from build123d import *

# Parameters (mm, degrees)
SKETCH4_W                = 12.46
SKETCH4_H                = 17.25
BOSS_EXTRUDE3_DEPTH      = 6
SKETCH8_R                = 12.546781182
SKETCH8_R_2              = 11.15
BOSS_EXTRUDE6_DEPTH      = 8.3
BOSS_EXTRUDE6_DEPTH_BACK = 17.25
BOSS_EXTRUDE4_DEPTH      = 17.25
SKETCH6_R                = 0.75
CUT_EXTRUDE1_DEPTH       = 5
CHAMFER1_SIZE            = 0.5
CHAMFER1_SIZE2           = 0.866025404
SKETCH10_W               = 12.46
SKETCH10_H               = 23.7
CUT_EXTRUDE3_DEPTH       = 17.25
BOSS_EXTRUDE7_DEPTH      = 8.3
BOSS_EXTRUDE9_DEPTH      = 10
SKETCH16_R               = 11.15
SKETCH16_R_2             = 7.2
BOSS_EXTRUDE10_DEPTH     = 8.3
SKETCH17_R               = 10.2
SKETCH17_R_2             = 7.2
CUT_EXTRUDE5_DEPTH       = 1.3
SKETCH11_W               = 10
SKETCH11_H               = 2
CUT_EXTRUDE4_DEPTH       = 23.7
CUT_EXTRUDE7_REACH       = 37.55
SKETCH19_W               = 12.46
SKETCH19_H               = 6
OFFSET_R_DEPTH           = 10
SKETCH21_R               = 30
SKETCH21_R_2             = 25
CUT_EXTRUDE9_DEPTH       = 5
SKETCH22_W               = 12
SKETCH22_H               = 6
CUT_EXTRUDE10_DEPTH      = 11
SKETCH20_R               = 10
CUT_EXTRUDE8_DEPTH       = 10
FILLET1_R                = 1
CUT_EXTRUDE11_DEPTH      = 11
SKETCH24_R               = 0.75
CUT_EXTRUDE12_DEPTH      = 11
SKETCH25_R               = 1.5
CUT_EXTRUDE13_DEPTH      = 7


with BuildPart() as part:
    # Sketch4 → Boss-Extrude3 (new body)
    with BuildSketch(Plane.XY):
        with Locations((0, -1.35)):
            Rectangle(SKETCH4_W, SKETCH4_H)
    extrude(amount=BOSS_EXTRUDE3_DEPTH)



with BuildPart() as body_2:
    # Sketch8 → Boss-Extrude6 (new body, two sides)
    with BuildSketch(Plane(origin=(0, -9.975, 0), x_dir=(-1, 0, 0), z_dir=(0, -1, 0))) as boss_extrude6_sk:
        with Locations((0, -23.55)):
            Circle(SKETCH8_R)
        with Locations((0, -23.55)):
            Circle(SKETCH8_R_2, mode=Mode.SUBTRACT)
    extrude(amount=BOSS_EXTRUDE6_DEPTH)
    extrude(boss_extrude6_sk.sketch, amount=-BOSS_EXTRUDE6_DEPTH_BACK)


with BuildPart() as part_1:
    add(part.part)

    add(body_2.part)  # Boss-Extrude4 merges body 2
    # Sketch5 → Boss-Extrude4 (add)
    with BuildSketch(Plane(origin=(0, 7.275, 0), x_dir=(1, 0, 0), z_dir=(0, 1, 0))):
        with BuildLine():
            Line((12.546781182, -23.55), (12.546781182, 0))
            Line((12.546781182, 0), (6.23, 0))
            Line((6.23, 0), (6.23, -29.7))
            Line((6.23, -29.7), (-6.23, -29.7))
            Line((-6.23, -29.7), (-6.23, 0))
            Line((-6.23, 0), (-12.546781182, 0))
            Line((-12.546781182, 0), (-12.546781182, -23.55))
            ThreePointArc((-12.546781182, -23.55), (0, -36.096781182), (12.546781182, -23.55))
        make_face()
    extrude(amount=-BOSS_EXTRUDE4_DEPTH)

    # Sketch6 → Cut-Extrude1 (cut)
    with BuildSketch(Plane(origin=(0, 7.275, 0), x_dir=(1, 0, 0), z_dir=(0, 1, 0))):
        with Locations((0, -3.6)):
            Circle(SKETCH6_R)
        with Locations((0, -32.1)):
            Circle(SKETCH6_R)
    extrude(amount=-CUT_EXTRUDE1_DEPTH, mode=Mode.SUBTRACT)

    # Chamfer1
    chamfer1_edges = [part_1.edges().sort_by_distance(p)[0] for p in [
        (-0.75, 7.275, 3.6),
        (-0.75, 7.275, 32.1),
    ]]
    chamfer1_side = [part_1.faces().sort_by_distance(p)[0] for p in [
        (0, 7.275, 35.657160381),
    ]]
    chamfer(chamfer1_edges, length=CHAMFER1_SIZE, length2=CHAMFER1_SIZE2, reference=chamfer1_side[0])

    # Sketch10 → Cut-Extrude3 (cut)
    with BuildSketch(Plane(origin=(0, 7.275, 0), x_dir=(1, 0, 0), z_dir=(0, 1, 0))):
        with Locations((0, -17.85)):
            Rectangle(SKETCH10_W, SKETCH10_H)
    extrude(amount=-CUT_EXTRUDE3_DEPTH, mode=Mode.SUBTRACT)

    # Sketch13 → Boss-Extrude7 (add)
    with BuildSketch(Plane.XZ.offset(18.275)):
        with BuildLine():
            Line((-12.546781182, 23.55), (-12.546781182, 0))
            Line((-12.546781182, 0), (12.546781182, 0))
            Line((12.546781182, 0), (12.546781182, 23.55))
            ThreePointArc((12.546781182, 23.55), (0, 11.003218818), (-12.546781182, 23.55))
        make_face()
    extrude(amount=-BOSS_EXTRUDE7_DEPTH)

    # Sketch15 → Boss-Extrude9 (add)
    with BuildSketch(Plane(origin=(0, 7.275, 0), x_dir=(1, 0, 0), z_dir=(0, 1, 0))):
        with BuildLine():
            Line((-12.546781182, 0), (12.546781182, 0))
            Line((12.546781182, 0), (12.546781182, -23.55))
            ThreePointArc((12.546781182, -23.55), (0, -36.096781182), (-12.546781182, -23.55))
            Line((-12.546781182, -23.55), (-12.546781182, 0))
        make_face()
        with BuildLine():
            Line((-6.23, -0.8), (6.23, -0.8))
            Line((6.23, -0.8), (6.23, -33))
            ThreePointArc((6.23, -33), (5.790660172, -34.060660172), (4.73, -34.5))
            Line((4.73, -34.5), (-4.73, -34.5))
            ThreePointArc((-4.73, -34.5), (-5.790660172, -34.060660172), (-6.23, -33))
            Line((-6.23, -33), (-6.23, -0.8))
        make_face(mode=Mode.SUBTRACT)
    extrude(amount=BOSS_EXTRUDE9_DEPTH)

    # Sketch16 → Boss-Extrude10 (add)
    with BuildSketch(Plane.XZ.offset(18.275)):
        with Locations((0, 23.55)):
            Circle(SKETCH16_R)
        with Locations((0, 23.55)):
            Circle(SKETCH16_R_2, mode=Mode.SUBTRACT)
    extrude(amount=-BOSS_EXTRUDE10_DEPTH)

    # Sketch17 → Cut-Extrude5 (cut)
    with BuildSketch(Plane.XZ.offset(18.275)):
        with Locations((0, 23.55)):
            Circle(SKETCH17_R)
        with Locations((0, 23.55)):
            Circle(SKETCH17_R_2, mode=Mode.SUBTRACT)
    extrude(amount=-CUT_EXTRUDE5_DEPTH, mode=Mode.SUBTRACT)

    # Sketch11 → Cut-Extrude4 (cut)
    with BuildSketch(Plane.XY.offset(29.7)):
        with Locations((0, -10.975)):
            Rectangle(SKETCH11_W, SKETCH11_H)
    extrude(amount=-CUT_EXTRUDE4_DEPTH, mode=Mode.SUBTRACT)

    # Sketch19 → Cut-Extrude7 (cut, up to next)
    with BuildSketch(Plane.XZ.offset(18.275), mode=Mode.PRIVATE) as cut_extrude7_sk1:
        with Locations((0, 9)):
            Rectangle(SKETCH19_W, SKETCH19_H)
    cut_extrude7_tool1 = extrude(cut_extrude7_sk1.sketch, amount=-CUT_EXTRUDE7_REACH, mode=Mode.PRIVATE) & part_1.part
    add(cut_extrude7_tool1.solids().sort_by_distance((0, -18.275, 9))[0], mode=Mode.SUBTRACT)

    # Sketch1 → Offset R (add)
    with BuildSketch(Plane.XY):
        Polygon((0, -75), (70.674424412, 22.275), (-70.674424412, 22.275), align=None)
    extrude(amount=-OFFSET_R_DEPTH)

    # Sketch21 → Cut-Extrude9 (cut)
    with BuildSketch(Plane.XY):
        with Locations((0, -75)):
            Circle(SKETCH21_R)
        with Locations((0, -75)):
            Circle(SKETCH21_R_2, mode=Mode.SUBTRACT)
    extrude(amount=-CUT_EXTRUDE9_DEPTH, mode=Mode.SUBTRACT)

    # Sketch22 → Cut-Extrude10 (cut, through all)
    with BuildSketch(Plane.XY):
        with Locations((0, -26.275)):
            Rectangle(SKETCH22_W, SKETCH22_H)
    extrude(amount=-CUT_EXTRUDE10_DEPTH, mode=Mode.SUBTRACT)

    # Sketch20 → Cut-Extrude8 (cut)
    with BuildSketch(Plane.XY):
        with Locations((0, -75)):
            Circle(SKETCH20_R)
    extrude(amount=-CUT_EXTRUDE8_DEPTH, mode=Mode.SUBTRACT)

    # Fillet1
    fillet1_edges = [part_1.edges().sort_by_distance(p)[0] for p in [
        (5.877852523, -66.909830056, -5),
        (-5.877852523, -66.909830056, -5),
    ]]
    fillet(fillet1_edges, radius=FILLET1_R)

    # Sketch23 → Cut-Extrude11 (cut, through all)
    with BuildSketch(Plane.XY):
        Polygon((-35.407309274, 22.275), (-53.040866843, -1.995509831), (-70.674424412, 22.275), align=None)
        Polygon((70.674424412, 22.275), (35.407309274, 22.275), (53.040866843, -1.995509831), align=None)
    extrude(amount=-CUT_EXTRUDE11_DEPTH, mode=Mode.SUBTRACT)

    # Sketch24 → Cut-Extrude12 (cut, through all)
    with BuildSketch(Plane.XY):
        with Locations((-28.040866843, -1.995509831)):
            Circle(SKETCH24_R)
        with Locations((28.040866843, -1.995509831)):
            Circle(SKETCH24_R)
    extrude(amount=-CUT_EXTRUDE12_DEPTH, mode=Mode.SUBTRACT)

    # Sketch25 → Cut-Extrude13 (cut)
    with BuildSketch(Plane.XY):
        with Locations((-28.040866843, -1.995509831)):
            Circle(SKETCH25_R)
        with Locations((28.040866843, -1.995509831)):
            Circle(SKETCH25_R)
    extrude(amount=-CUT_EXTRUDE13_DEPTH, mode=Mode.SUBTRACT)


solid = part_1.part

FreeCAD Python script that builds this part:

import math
import FreeCAD as App
import Part
import Sketcher

V = App.Vector
Q = App.Units.Quantity


def edges_at(feature, points):
    """Names of the edges that pass closest to the given points."""
    edges = feature.Shape.Edges
    near = lambda p: min(range(len(edges)), key=lambda i: edges[i].distToShape(Part.Vertex(*p))[0])
    return sorted({f"Edge{near(p) + 1}" for p in points})


def add_polygon(sketch, points):
    """Adds a closed chain of lines whose ends are joined by coincident constraints."""
    first, n = sketch.GeometryCount, len(points)
    for a, b in zip(points, points[1:] + points[:1]):
        sketch.addGeometry(Part.LineSegment(App.Vector(*a, 0), App.Vector(*b, 0)), False)
    for i in range(n):
        sketch.addConstraint(Sketcher.Constraint("Coincident", first + i, 2, first + (i + 1) % n, 1))

doc = App.newDocument("Part")
body = doc.addObject("PartDesign::Body", "Body")

sketch1 = body.newObject("Sketcher::SketchObject", "Sketch")
sketch1.AttachmentSupport = (doc.getObject("XY_Plane"), [""])
sketch1.MapMode = "FlatFace"
add_polygon(sketch1, [(-6.23, 7.275), (-6.23, -9.975), (6.23, -9.975), (6.23, 7.275)])
sketch1.addConstraint([
    Sketcher.Constraint("Vertical", 0),
    Sketcher.Constraint("Horizontal", 1),
    Sketcher.Constraint("Vertical", 2),
    Sketcher.Constraint("Horizontal", 3),
    Sketcher.Constraint("DistanceX", 1, 1, 1, 2, Q("12.46 mm")),
    Sketcher.Constraint("DistanceY", 0, 2, 0, 1, Q("17.25 mm")),
    Sketcher.Constraint("DistanceX", 0, 2, -1, 1, Q("6.23 mm")),
    Sketcher.Constraint("DistanceY", 0, 2, -1, 1, Q("9.975 mm")),
])
pad1 = body.newObject("PartDesign::Pad", "Pad")
pad1.Profile = sketch1
pad1.Length = 6
body2 = doc.addObject("PartDesign::Body", "Body001")

sketch2 = body2.newObject("Sketcher::SketchObject", "Sketch001")
sketch2.AttachmentSupport = (doc.getObject("XZ_Plane001"), [""])
sketch2.MapMode = "FlatFace"
sketch2.AttachmentOffset = App.Placement(V(0, 0, 9.975), App.Rotation())
sketch2.addGeometry([
    Part.Circle(V(0, 23.55, 0), V(0, 0, 1), 12.546781),
    Part.Circle(V(0, 23.55, 0), V(0, 0, 1), 11.15),
], False)
sketch2.addConstraint([
    Sketcher.Constraint("Coincident", 1, 3, 0, 3),
    Sketcher.Constraint("PointOnObject", 0, 3, -2),
    Sketcher.Constraint("Diameter", 1, Q("22.3 mm")),
    Sketcher.Constraint("DistanceY", -1, 1, 0, 3, Q("23.55 mm")),
    Sketcher.Constraint("Diameter", 0, Q("25.093562 mm")),
])
pad2 = body2.newObject("PartDesign::Pad", "Pad001")
pad2.Profile = sketch2
pad2.Type = "TwoLengths"
pad2.Length = 8.3
pad2.Length2 = 17.25
body.AllowCompound = True
doc.recompute()

boolean = body.newObject("PartDesign::Boolean", "Boolean")
boolean.Type = "Fuse"
boolean.addObjects([body2])

sketch3 = body.newObject("Sketcher::SketchObject", "Sketch002")
sketch3.AttachmentSupport = (doc.getObject("XZ_Plane"), [""])
sketch3.MapMode = "FlatFace"
sketch3.AttachmentOffset = App.Placement(V(0, 0, -7.275), App.Rotation())
sketch3.addGeometry([
    Part.LineSegment(V(12.546781, 23.55, 0), V(12.546781, 0, 0)),
    Part.LineSegment(V(12.546781, 0, 0), V(6.23, 0, 0)),
    Part.LineSegment(V(6.23, 0, 0), V(6.23, 29.7, 0)),
    Part.LineSegment(V(6.23, 29.7, 0), V(-6.23, 29.7, 0)),
    Part.LineSegment(V(-6.23, 29.7, 0), V(-6.23, 0, 0)),
    Part.LineSegment(V(-6.23, 0, 0), V(-12.546781, 0, 0)),
    Part.LineSegment(V(-12.546781, 0, 0), V(-12.546781, 23.55, 0)),
    Part.ArcOfCircle(Part.Circle(V(0, 23.55, 0), V(0, 0, 1), 12.546781), math.radians(0), math.radians(180)),
], False)
sketch3.addConstraint([
    Sketcher.Constraint("Coincident", 0, 2, 1, 1),
    Sketcher.Constraint("Coincident", 1, 2, 2, 1),
    Sketcher.Constraint("Coincident", 2, 2, 3, 1),
    Sketcher.Constraint("Coincident", 3, 2, 4, 1),
    Sketcher.Constraint("Coincident", 4, 2, 5, 1),
    Sketcher.Constraint("Coincident", 5, 2, 6, 1),
    Sketcher.Constraint("Tangent", 6, 2, 7, 2),
    Sketcher.Constraint("Tangent", 7, 1, 0, 1),
    Sketcher.Constraint("Vertical", 0),
    Sketcher.Constraint("Horizontal", 1),
    Sketcher.Constraint("Vertical", 2),
    Sketcher.Constraint("Horizontal", 3),
    Sketcher.Constraint("Vertical", 4),
    Sketcher.Constraint("Horizontal", 5),
    Sketcher.Constraint("Vertical", 6),
    Sketcher.Constraint("Symmetric", 1, 2, 4, 2, -1, 1),
    Sketcher.Constraint("Symmetric", 0, 2, 5, 2, -2),
    Sketcher.Constraint("DistanceY", 2, 1, 2, 2, Q("29.7 mm")),
    Sketcher.Constraint("DistanceX", 3, 2, 3, 1, Q("12.46 mm")),
    Sketcher.Constraint("DistanceY", 0, 2, 0, 1, Q("23.55 mm")),
    Sketcher.Constraint("Radius", 7, Q("12.546781 mm")),
])
pad3 = body.newObject("PartDesign::Pad", "Pad002")
pad3.Profile = sketch3
pad3.Length = 17.25

sketch4 = body.newObject("Sketcher::SketchObject", "Sketch003")
sketch4.AttachmentSupport = (doc.getObject("XZ_Plane"), [""])
sketch4.MapMode = "FlatFace"
sketch4.AttachmentOffset = App.Placement(V(0, 0, -7.275), App.Rotation())
sketch4.addGeometry([
    Part.Circle(V(0, 3.6, 0), V(0, 0, 1), 0.75),
    Part.Circle(V(0, 32.1, 0), V(0, 0, 1), 0.75),
], False)
sketch4.addConstraint([
    Sketcher.Constraint("Equal", 0, 1),
    Sketcher.Constraint("PointOnObject", 0, 3, -2),
    Sketcher.Constraint("PointOnObject", 1, 3, -2),
    Sketcher.Constraint("Diameter", 0, Q("1.5 mm")),
    Sketcher.Constraint("DistanceY", -1, 1, 0, 3, Q("3.6 mm")),
    Sketcher.Constraint("DistanceY", -1, 1, 1, 3, Q("32.1 mm")),
])
pocket1 = body.newObject("PartDesign::Pocket", "Pocket")
pocket1.Profile = sketch4
pocket1.Length = 5
pocket1.Reversed = True
doc.recompute()

chamfer = body.newObject("PartDesign::Chamfer", "Chamfer")
chamfer.Base = (pocket1, edges_at(pocket1, [(-0.75, 7.275, 3.6), (-0.75, 7.275, 32.1)]))
chamfer.ChamferType = "Two distances"
chamfer.Size = 0.5
chamfer.Size2 = 0.866025

sketch5 = body.newObject("Sketcher::SketchObject", "Sketch004")
sketch5.AttachmentSupport = (doc.getObject("XZ_Plane"), [""])
sketch5.MapMode = "FlatFace"
sketch5.AttachmentOffset = App.Placement(V(0, 0, -7.275), App.Rotation())
add_polygon(sketch5, [(-6.23, 6), (-6.23, 29.7), (6.23, 29.7), (6.23, 6)])
sketch5.addConstraint([
    Sketcher.Constraint("Vertical", 0),
    Sketcher.Constraint("Horizontal", 1),
    Sketcher.Constraint("Vertical", 2),
    Sketcher.Constraint("Horizontal", 3),
    Sketcher.Constraint("DistanceY", 0, 1, 0, 2, Q("23.7 mm")),
    Sketcher.Constraint("DistanceY", -1, 1, 2, 2, Q("6 mm")),
    Sketcher.Constraint("DistanceX", 1, 1, 1, 2, Q("12.46 mm")),
    Sketcher.Constraint("DistanceX", 0, 2, -1, 1, Q("6.23 mm")),
])
pocket2 = body.newObject("PartDesign::Pocket", "Pocket001")
pocket2.Profile = sketch5
pocket2.Length = 17.25
pocket2.Reversed = True

sketch6 = body.newObject("Sketcher::SketchObject", "Sketch005")
sketch6.AttachmentSupport = (doc.getObject("XZ_Plane"), [""])
sketch6.MapMode = "FlatFace"
sketch6.AttachmentOffset = App.Placement(V(0, 0, 18.275), App.Rotation())
sketch6.addGeometry([
    Part.LineSegment(V(-12.546781, 23.55, 0), V(-12.546781, 0, 0)),
    Part.LineSegment(V(-12.546781, 0, 0), V(12.546781, 0, 0)),
    Part.LineSegment(V(12.546781, 0, 0), V(12.546781, 23.55, 0)),
    Part.ArcOfCircle(Part.Circle(V(0, 23.55, 0), V(0, 0, 1), 12.546781), math.radians(180), math.radians(360)),
], False)
sketch6.addConstraint([
    Sketcher.Constraint("Coincident", 0, 2, 1, 1),
    Sketcher.Constraint("Coincident", 1, 2, 2, 1),
    Sketcher.Constraint("Tangent", 2, 2, 3, 2),
    Sketcher.Constraint("Tangent", 3, 1, 0, 1),
    Sketcher.Constraint("Vertical", 0),
    Sketcher.Constraint("Horizontal", 1),
    Sketcher.Constraint("Vertical", 2),
    Sketcher.Constraint("Symmetric", 0, 2, 1, 2, -1, 1),
    Sketcher.Constraint("DistanceY", 0, 2, 0, 1, Q("23.55 mm")),
    Sketcher.Constraint("Radius", 3, Q("12.546781 mm")),
])
pad4 = body.newObject("PartDesign::Pad", "Pad003")
pad4.Profile = sketch6
pad4.Length = 8.3
pad4.Reversed = True

sketch7 = body.newObject("Sketcher::SketchObject", "Sketch006")
sketch7.AttachmentSupport = (doc.getObject("XZ_Plane"), [""])
sketch7.MapMode = "FlatFace"
sketch7.AttachmentOffset = App.Placement(V(0, 0, -7.275), App.Rotation())
sketch7.addGeometry([
    Part.LineSegment(V(12.546781, 0, 0), V(-12.546781, 0, 0)),
    Part.LineSegment(V(-12.546781, 0, 0), V(-12.546781, 23.55, 0)),
    Part.ArcOfCircle(Part.Circle(V(0, 23.55, 0), V(0, 0, 1), 12.546781), math.radians(0), math.radians(180)),
    Part.LineSegment(V(12.546781, 23.55, 0), V(12.546781, 0, 0)),
    Part.LineSegment(V(-6.23, 0.8, 0), V(6.23, 0.8, 0)),
    Part.LineSegment(V(6.23, 0.8, 0), V(6.23, 33, 0)),
    Part.ArcOfCircle(Part.Circle(V(4.73, 33, 0), V(0, 0, 1), 1.5), math.radians(0), math.radians(90)),
    Part.LineSegment(V(4.73, 34.5, 0), V(-4.73, 34.5, 0)),
    Part.ArcOfCircle(Part.Circle(V(-4.73, 33, 0), V(0, 0, 1), 1.5), math.radians(90), math.radians(180)),
    Part.LineSegment(V(-6.23, 33, 0), V(-6.23, 0.8, 0)),
], False)
sketch7.addConstraint([
    Sketcher.Constraint("Coincident", 0, 2, 1, 1),
    Sketcher.Constraint("Tangent", 1, 2, 2, 2),
    Sketcher.Constraint("Tangent", 2, 1, 3, 1),
    Sketcher.Constraint("Coincident", 3, 2, 0, 1),
    Sketcher.Constraint("Coincident", 4, 2, 5, 1),
    Sketcher.Constraint("Tangent", 5, 2, 6, 1),
    Sketcher.Constraint("Tangent", 6, 2, 7, 1),
    Sketcher.Constraint("Tangent", 7, 2, 8, 1),
    Sketcher.Constraint("Tangent", 8, 2, 9, 1),
    Sketcher.Constraint("Coincident", 9, 2, 4, 1),
    Sketcher.Constraint("Horizontal", 0),
    Sketcher.Constraint("Vertical", 1),
    Sketcher.Constraint("Vertical", 3),
    Sketcher.Constraint("Horizontal", 4),
    Sketcher.Constraint("Vertical", 5),
    Sketcher.Constraint("Horizontal", 7),
    Sketcher.Constraint("Vertical", 9),
    Sketcher.Constraint("Equal", 6, 8),
    Sketcher.Constraint("Symmetric", 0, 2, 3, 2, -1, 1),
    Sketcher.Constraint("Radius", 6, Q("1.5 mm")),
    Sketcher.Constraint("DistanceY", 5, 1, 5, 2, Q("32.2 mm")),
    Sketcher.Constraint("DistanceY", -1, 1, 6, 3, Q("33 mm")),
    Sketcher.Constraint("DistanceX", 4, 1, 4, 2, Q("12.46 mm")),
    Sketcher.Constraint("DistanceY", 1, 1, 1, 2, Q("23.55 mm")),
    Sketcher.Constraint("DistanceX", -1, 1, 6, 3, Q("4.73 mm")),
    Sketcher.Constraint("Radius", 2, Q("12.546781 mm")),
])
pad5 = body.newObject("PartDesign::Pad", "Pad004")
pad5.Profile = sketch7
pad5.Length = 10
pad5.Reversed = True

sketch8 = body.newObject("Sketcher::SketchObject", "Sketch007")
sketch8.AttachmentSupport = (doc.getObject("XZ_Plane"), [""])
sketch8.MapMode = "FlatFace"
sketch8.AttachmentOffset = App.Placement(V(0, 0, 18.275), App.Rotation())
sketch8.addGeometry([
    Part.Circle(V(0, 23.55, 0), V(0, 0, 1), 11.15),
    Part.Circle(V(0, 23.55, 0), V(0, 0, 1), 7.2),
], False)
sketch8.addConstraint([
    Sketcher.Constraint("Coincident", 1, 3, 0, 3),
    Sketcher.Constraint("PointOnObject", 0, 3, -2),
    Sketcher.Constraint("Diameter", 0, Q("22.3 mm")),
    Sketcher.Constraint("Diameter", 1, Q("14.4 mm")),
    Sketcher.Constraint("DistanceY", -1, 1, 0, 3, Q("23.55 mm")),
])
pad6 = body.newObject("PartDesign::Pad", "Pad005")
pad6.Profile = sketch8
pad6.Length = 8.3
pad6.Reversed = True

sketch9 = body.newObject("Sketcher::SketchObject", "Sketch008")
sketch9.AttachmentSupport = (doc.getObject("XZ_Plane"), [""])
sketch9.MapMode = "FlatFace"
sketch9.AttachmentOffset = App.Placement(V(0, 0, 18.275), App.Rotation())
sketch9.addGeometry([
    Part.Circle(V(0, 23.55, 0), V(0, 0, 1), 10.2),
    Part.Circle(V(0, 23.55, 0), V(0, 0, 1), 7.2),
], False)
sketch9.addConstraint([
    Sketcher.Constraint("Coincident", 1, 3, 0, 3),
    Sketcher.Constraint("PointOnObject", 0, 3, -2),
    Sketcher.Constraint("Diameter", 0, Q("20.4 mm")),
    Sketcher.Constraint("Diameter", 1, Q("14.4 mm")),
    Sketcher.Constraint("DistanceY", -1, 1, 0, 3, Q("23.55 mm")),
])
pocket3 = body.newObject("PartDesign::Pocket", "Pocket002")
pocket3.Profile = sketch9
pocket3.Length = 1.3

sketch10 = body.newObject("Sketcher::SketchObject", "Sketch009")
sketch10.AttachmentSupport = (doc.getObject("XY_Plane"), [""])
sketch10.MapMode = "FlatFace"
sketch10.AttachmentOffset = App.Placement(V(0, 0, 29.7), App.Rotation())
add_polygon(sketch10, [(-5, -9.975), (-5, -11.975), (5, -11.975), (5, -9.975)])
sketch10.addConstraint([
    Sketcher.Constraint("Vertical", 0),
    Sketcher.Constraint("Horizontal", 1),
    Sketcher.Constraint("Vertical", 2),
    Sketcher.Constraint("Horizontal", 3),
    Sketcher.Constraint("DistanceX", 1, 1, 1, 2, Q("10 mm")),
    Sketcher.Constraint("DistanceY", 0, 2, 0, 1, Q("2 mm")),
    Sketcher.Constraint("DistanceX", 0, 2, -1, 1, Q("5 mm")),
    Sketcher.Constraint("DistanceY", 0, 2, -1, 1, Q("11.975 mm")),
])
pocket4 = body.newObject("PartDesign::Pocket", "Pocket003")
pocket4.Profile = sketch10
pocket4.Length = 23.7

sketch11 = body.newObject("Sketcher::SketchObject", "Sketch010")
sketch11.AttachmentSupport = (doc.getObject("XZ_Plane"), [""])
sketch11.MapMode = "FlatFace"
sketch11.AttachmentOffset = App.Placement(V(0, 0, 18.275), App.Rotation())
add_polygon(sketch11, [(-6.23, 12), (-6.23, 6), (6.23, 6), (6.23, 12)])
sketch11.addConstraint([
    Sketcher.Constraint("Vertical", 0),
    Sketcher.Constraint("Horizontal", 1),
    Sketcher.Constraint("Vertical", 2),
    Sketcher.Constraint("Horizontal", 3),
    Sketcher.Constraint("DistanceY", 0, 2, 0, 1, Q("6 mm")),
    Sketcher.Constraint("DistanceY", -1, 1, 0, 2, Q("6 mm")),
    Sketcher.Constraint("DistanceX", 1, 1, 1, 2, Q("12.46 mm")),
    Sketcher.Constraint("DistanceX", 0, 2, -1, 1, Q("6.23 mm")),
])
pocket5 = body.newObject("PartDesign::Pocket", "Pocket004")
pocket5.Profile = sketch11
pocket5.Length = 8.3

sketch12 = body.newObject("Sketcher::SketchObject", "Sketch011")
sketch12.AttachmentSupport = (doc.getObject("XY_Plane"), [""])
sketch12.MapMode = "FlatFace"
add_polygon(sketch12, [(0, -75), (70.674424, 22.275), (-70.674424, 22.275)])
sketch12.addConstraint([
    Sketcher.Constraint("Horizontal", 1),
    Sketcher.Constraint("PointOnObject", 2, 2, -2),
    Sketcher.Constraint("Equal", 0, 2),
    Sketcher.Constraint("Angle", 0, Q("54 deg")),
    Sketcher.Constraint("DistanceY", 2, 2, -1, 1, Q("75 mm")),
    Sketcher.Constraint("DistanceY", -1, 1, 0, 2, Q("22.275 mm")),
])
pad7 = body.newObject("PartDesign::Pad", "Pad006")
pad7.Profile = sketch12
pad7.Length = 10
pad7.Reversed = True

sketch13 = body.newObject("Sketcher::SketchObject", "Sketch012")
sketch13.AttachmentSupport = (doc.getObject("XY_Plane"), [""])
sketch13.MapMode = "FlatFace"
sketch13.addGeometry([
    Part.Circle(V(0, -75, 0), V(0, 0, 1), 30),
    Part.Circle(V(0, -75, 0), V(0, 0, 1), 25),
], False)
sketch13.addConstraint([
    Sketcher.Constraint("Coincident", 1, 3, 0, 3),
    Sketcher.Constraint("PointOnObject", 0, 3, -2),
    Sketcher.Constraint("Diameter", 0, Q("60 mm")),
    Sketcher.Constraint("Diameter", 1, Q("50 mm")),
    Sketcher.Constraint("DistanceY", 0, 3, -1, 1, Q("75 mm")),
])
pocket6 = body.newObject("PartDesign::Pocket", "Pocket005")
pocket6.Profile = sketch13
pocket6.Length = 5

sketch14 = body.newObject("Sketcher::SketchObject", "Sketch013")
sketch14.AttachmentSupport = (doc.getObject("XY_Plane"), [""])
sketch14.MapMode = "FlatFace"
add_polygon(sketch14, [(-6, -23.275), (-6, -29.275), (6, -29.275), (6, -23.275)])
sketch14.addConstraint([
    Sketcher.Constraint("Vertical", 0),
    Sketcher.Constraint("Horizontal", 1),
    Sketcher.Constraint("Vertical", 2),
    Sketcher.Constraint("Horizontal", 3),
    Sketcher.Constraint("DistanceX", 1, 1, 1, 2, Q("12 mm")),
    Sketcher.Constraint("DistanceY", 0, 2, 0, 1, Q("6 mm")),
    Sketcher.Constraint("DistanceX", 0, 2, -1, 1, Q("6 mm")),
    Sketcher.Constraint("DistanceY", 0, 2, -1, 1, Q("29.275 mm")),
])
pocket7 = body.newObject("PartDesign::Pocket", "Pocket006")
pocket7.Profile = sketch14
pocket7.Type = "ThroughAll"

sketch15 = body.newObject("Sketcher::SketchObject", "Sketch014")
sketch15.AttachmentSupport = (doc.getObject("XY_Plane"), [""])
sketch15.MapMode = "FlatFace"
sketch15.addGeometry(Part.Circle(V(0, -75, 0), V(0, 0, 1), 10), False)
sketch15.addConstraint([
    Sketcher.Constraint("PointOnObject", 0, 3, -2),
    Sketcher.Constraint("Diameter", 0, Q("20 mm")),
    Sketcher.Constraint("DistanceY", 0, 3, -1, 1, Q("75 mm")),
])
pocket8 = body.newObject("PartDesign::Pocket", "Pocket007")
pocket8.Profile = sketch15
pocket8.Length = 10
doc.recompute()

fillet = body.newObject("PartDesign::Fillet", "Fillet")
fillet.Base = (pocket8, edges_at(pocket8, [(5.878, -66.91, -5), (-5.878, -66.91, -5)]))
fillet.Radius = 1

sketch16 = body.newObject("Sketcher::SketchObject", "Sketch015")
sketch16.AttachmentSupport = (doc.getObject("XY_Plane"), [""])
sketch16.MapMode = "FlatFace"
add_polygon(sketch16, [(-53.040867, -1.99551), (-35.407309, 22.275), (-70.674424, 22.275)])
add_polygon(sketch16, [(70.674424, 22.275), (35.407309, 22.275), (53.040867, -1.99551)])
sketch16.addConstraint([
    Sketcher.Constraint("Horizontal", 1),
    Sketcher.Constraint("Horizontal", 3),
    Sketcher.Constraint("Symmetric", 0, 2, 3, 2, -2),
    Sketcher.Constraint("Symmetric", 2, 2, 4, 2, -2),
    Sketcher.Constraint("Parallel", 2, 4),
    Sketcher.Constraint("Parallel", 0, 5),
    Sketcher.Constraint("Angle", 0, Q("54 deg")),
    Sketcher.Constraint("Distance", 0, Q("30 mm")),
    Sketcher.Constraint("DistanceY", -1, 1, 0, 2, Q("22.275 mm")),
    Sketcher.Constraint("DistanceX", 0, 2, -1, 1, Q("35.407309 mm")),
])
pocket9 = body.newObject("PartDesign::Pocket", "Pocket008")
pocket9.Profile = sketch16
pocket9.Type = "ThroughAll"

sketch17 = body.newObject("Sketcher::SketchObject", "Sketch016")
sketch17.AttachmentSupport = (doc.getObject("XY_Plane"), [""])
sketch17.MapMode = "FlatFace"
sketch17.addGeometry([
    Part.Circle(V(-28.040867, -1.99551, 0), V(0, 0, 1), 0.75),
    Part.Circle(V(28.040867, -1.99551, 0), V(0, 0, 1), 0.75),
], False)
sketch17.addConstraint([
    Sketcher.Constraint("Equal", 0, 1),
    Sketcher.Constraint("Symmetric", 0, 3, 1, 3, -2),
    Sketcher.Constraint("Diameter", 0, Q("1.5 mm")),
    Sketcher.Constraint("DistanceY", 0, 3, -1, 1, Q("1.99551 mm")),
    Sketcher.Constraint("DistanceX", 0, 3, -1, 1, Q("28.040867 mm")),
])
pocket10 = body.newObject("PartDesign::Pocket", "Pocket009")
pocket10.Profile = sketch17
pocket10.Type = "ThroughAll"

sketch18 = body.newObject("Sketcher::SketchObject", "Sketch017")
sketch18.AttachmentSupport = (doc.getObject("XY_Plane"), [""])
sketch18.MapMode = "FlatFace"
sketch18.addGeometry([
    Part.Circle(V(-28.040867, -1.99551, 0), V(0, 0, 1), 1.5),
    Part.Circle(V(28.040867, -1.99551, 0), V(0, 0, 1), 1.5),
], False)
sketch18.addConstraint([
    Sketcher.Constraint("Equal", 0, 1),
    Sketcher.Constraint("Symmetric", 0, 3, 1, 3, -2),
    Sketcher.Constraint("Diameter", 0, Q("3 mm")),
    Sketcher.Constraint("DistanceY", 0, 3, -1, 1, Q("1.99551 mm")),
    Sketcher.Constraint("DistanceX", 0, 3, -1, 1, Q("28.040867 mm")),
])
pocket11 = body.newObject("PartDesign::Pocket", "Pocket010")
pocket11.Profile = sketch18
pocket11.Length = 7

doc.recompute()
